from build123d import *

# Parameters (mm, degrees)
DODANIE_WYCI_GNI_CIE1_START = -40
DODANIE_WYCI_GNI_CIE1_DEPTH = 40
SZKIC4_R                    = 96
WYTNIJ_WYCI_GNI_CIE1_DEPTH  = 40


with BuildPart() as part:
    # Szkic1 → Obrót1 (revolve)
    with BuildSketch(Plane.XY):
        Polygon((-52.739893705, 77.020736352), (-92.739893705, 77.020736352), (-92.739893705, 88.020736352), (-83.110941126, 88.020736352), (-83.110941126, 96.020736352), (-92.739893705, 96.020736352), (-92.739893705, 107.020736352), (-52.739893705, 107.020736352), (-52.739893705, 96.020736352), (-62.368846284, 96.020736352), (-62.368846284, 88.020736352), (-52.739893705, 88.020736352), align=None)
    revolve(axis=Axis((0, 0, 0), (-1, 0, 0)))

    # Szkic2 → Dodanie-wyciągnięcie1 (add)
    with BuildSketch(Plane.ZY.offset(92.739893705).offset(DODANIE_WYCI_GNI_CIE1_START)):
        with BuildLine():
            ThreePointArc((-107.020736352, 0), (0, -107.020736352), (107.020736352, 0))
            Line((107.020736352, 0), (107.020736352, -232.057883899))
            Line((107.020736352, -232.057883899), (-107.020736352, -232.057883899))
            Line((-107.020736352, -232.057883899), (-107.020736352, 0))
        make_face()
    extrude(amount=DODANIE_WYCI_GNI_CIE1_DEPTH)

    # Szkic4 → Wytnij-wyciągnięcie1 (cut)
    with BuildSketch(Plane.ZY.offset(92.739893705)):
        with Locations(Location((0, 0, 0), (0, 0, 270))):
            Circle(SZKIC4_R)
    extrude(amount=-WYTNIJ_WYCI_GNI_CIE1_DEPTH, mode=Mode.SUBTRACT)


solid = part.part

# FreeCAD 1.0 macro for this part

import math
import FreeCAD as App
import Part
import Sketcher
from FreeCAD import Vector

doc = App.newDocument("Part")
params = doc.addObject("Spreadsheet::Sheet", "Params")
for row, (alias, value) in enumerate([
    ("sketch1_width", "40 mm"),
    ("sketch1_height", "11 mm"),
    ("sketch1_height2", "8 mm"),
    ("revolution_angle", "360 deg"),
    ("pad1_length", "40 mm"),
    ("sketch3_diameter", "192 mm"),
    ("pocket1_length", "40 mm"),
], start=1):
    params.set(f"A{row}", alias)
    params.set(f"B{row}", "=" + value)
    params.setAlias(f"B{row}", alias)

body = doc.addObject("PartDesign::Body", "Body")

# Sketch on XY plane
sketch1 = body.newObject("Sketcher::SketchObject", "Sketch")
sketch1.AttachmentSupport = (doc.getObject("XY_Plane"), [""])
sketch1.MapMode = "FlatFace"
sketch1.addGeometry([
    Part.LineSegment(Vector(-93, 77, 0), Vector(-53, 77, 0)),  # 0
    Part.LineSegment(Vector(-53, 77, 0), Vector(-53, 88, 0)),  # 1
    Part.LineSegment(Vector(-53, 88, 0), Vector(-62, 88, 0)),  # 2
    Part.LineSegment(Vector(-62, 88, 0), Vector(-62, 96, 0)),  # 3
    Part.LineSegment(Vector(-62, 96, 0), Vector(-53, 96, 0)),  # 4
    Part.LineSegment(Vector(-53, 96, 0), Vector(-53, 107, 0)),  # 5
    Part.LineSegment(Vector(-53, 107, 0), Vector(-93, 107, 0)),  # 6
    Part.LineSegment(Vector(-93, 107, 0), Vector(-93, 96, 0)),  # 7
    Part.LineSegment(Vector(-93, 96, 0), Vector(-83, 96, 0)),  # 8
    Part.LineSegment(Vector(-83, 96, 0), Vector(-83, 88, 0)),  # 9
    Part.LineSegment(Vector(-83, 88, 0), Vector(-93, 88, 0)),  # 10
    Part.LineSegment(Vector(-93, 88, 0), Vector(-93, 77, 0)),  # 11
], False)
sketch1.addConstraint([
    Sketcher.Constraint("Coincident", 0, 2, 1, 1),
    Sketcher.Constraint("Coincident", 1, 2, 2, 1),
    Sketcher.Constraint("Coincident", 2, 2, 3, 1),
    Sketcher.Constraint("Coincident", 3, 2, 4, 1),
    Sketcher.Constraint("Coincident", 4, 2, 5, 1),
    Sketcher.Constraint("Coincident", 5, 2, 6, 1),
    Sketcher.Constraint("Coincident", 6, 2, 7, 1),
    Sketcher.Constraint("Coincident", 7, 2, 8, 1),
    Sketcher.Constraint("Coincident", 8, 2, 9, 1),
    Sketcher.Constraint("Coincident", 9, 2, 10, 1),
    Sketcher.Constraint("Coincident", 10, 2, 11, 1),
    Sketcher.Constraint("Coincident", 11, 2, 0, 1),
    Sketcher.Constraint("Horizontal", 0),
    Sketcher.Constraint("Vertical", 1),
    Sketcher.Constraint("Horizontal", 2),
    Sketcher.Constraint("Vertical", 3),
    Sketcher.Constraint("Horizontal", 4),
    Sketcher.Constraint("Vertical", 5),
    Sketcher.Constraint("Horizontal", 6),
    Sketcher.Constraint("Vertical", 7),
    Sketcher.Constraint("Horizontal", 8),
    Sketcher.Constraint("Vertical", 9),
    Sketcher.Constraint("Horizontal", 10),
    Sketcher.Constraint("Vertical", 11),
    Sketcher.Constraint("Horizontal", 4, 2, 7, 2),
    Sketcher.Constraint("Horizontal", 2, 2, 9, 2),
    Sketcher.Constraint("Vertical", 1, 2, 4, 2),
    Sketcher.Constraint("Vertical", 7, 2, 10, 2),
    Sketcher.Constraint("Equal", 4, 8),
    Sketcher.Constraint("Equal", 1, 5),
    Sketcher.Constraint("DistanceX", 0, 1, 0, 2, 40.0),
    Sketcher.Constraint("DistanceY", 1, 1, 1, 2, 11.0),
    Sketcher.Constraint("DistanceY", 3, 1, 3, 2, 8.0),
    Sketcher.Constraint("DistanceX", 2, 2, 2, 1, 9.628953),
    Sketcher.Constraint("DistanceX", 8, 2, -1, 1, 83.110941),
    Sketcher.Constraint("DistanceY", -1, 1, 0, 2, 77.020736),
])
sketch1.setExpression("Constraints[30]", "Params.sketch1_width")
sketch1.setExpression("Constraints[31]", "Params.sketch1_height")
sketch1.setExpression("Constraints[32]", "Params.sketch1_height2")
revolution = body.newObject("PartDesign::Revolution", "Revolution")
revolution.Profile = sketch1
revolution.ReferenceAxis = (sketch1, ["H_Axis"])
revolution.setExpression("Angle", "Params.revolution_angle")

# Sketch on YZ plane
sketch2 = body.newObject("Sketcher::SketchObject", "Sketch001")
sketch2.AttachmentSupport = (doc.getObject("YZ_Plane"), [""])
sketch2.MapMode = "FlatFace"
sketch2.AttachmentOffset = App.Placement(Vector(0, 0, -52.739894), App.Rotation())
sketch2.addGeometry([
    Part.ArcOfCircle(Part.Circle(Vector(0, 0, 0), Vector(0, 0, 1), 107), math.radians(90), math.radians(270)),
    Part.LineSegment(Vector(0, -107, 0), Vector(-232, -107, 0)),
    Part.LineSegment(Vector(-232, -107, 0), Vector(-232, 107, 0)),
    Part.LineSegment(Vector(-232, 107, 0), Vector(0, 107, 0)),
], False)
sketch2.addConstraint([
    Sketcher.Constraint("Tangent", 0, 2, 1, 1),
    Sketcher.Constraint("Coincident", 1, 2, 2, 1),
    Sketcher.Constraint("Coincident", 2, 2, 3, 1),
    Sketcher.Constraint("Tangent", 3, 2, 0, 1),
    Sketcher.Constraint("Horizontal", 1),
    Sketcher.Constraint("Vertical", 2),
    Sketcher.Constraint("Horizontal", 3),
    Sketcher.Constraint("Coincident", 0, 3, -1, 1),
    Sketcher.Constraint("Radius", 0, 107.020736),
    Sketcher.Constraint("DistanceX", 1, 2, 1, 1, 232.057884),
])
pad1 = body.newObject("PartDesign::Pad", "Pad")
pad1.Profile = sketch2
pad1.setExpression("Length", "Params.pad1_length")
pad1.Reversed = True

# Sketch on YZ plane
sketch3 = body.newObject("Sketcher::SketchObject", "Sketch002")
sketch3.AttachmentSupport = (doc.getObject("YZ_Plane"), [""])
sketch3.MapMode = "FlatFace"
sketch3.AttachmentOffset = App.Placement(Vector(0, 0, -92.739894), App.Rotation())
sketch3.addGeometry(Part.Circle(Vector(0, 0, 0), Vector(0, 0, 1), 96), False)
sketch3.addConstraint([
    Sketcher.Constraint("Coincident", 0, 3, -1, 1),
    Sketcher.Constraint("Diameter", 0, 192.0),
])
sketch3.setExpression("Constraints[1]", "Params.sketch3_diameter")
pocket1 = body.newObject("PartDesign::Pocket", "Pocket")
pocket1.Profile = sketch3
pocket1.setExpression("Length", "Params.pocket1_length")
pocket1.Reversed = True

doc.recompute()
